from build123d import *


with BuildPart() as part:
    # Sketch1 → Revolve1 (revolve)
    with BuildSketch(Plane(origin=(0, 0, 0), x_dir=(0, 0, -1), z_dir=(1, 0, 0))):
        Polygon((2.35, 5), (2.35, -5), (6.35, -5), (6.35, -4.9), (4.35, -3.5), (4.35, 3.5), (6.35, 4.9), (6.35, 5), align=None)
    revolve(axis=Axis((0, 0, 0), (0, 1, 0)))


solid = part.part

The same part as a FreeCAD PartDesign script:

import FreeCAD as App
import Part
import Sketcher
from FreeCAD import Vector
Q = App.Units.Quantity


def add_polygon(sketch, points):
    """Adds a closed chain of lines whose ends are joined by coincident constraints."""
    first, n = sketch.GeometryCount, len(points)
    for a, b in zip(points, points[1:] + points[:1]):
        sketch.addGeometry(Part.LineSegment(App.Vector(*a, 0), App.Vector(*b, 0)), False)
    for i in range(n):
        sketch.addConstraint(Sketcher.Constraint("Coincident", first + i, 2, first + (i + 1) % n, 1))

doc = App.newDocument("Part")
params = doc.addObject("Spreadsheet::Sheet", "Params")
for row, (alias, value) in enumerate([
    ("sketch1_width", "10 mm"),
    ("sketch1_width2", "7 mm"),
    ("sketch1_height", "4 mm"),
    ("sketch1_width3", "0.1 mm"),
    ("revolution_angle", "360 deg"),
], start=1):
    params.set(f"A{row}", alias)
    params.set(f"B{row}", "=" + value)
    params.setAlias(f"B{row}", alias)

body = doc.addObject("PartDesign::Body", "Body")

# Sketch on YZ plane
sketch1 = body.newObject("Sketcher::SketchObject", "Sketch")
sketch1.AttachmentSupport = (doc.getObject("YZ_Plane"), [""])
sketch1.MapMode = "FlatFace"
add_polygon(sketch1, [(5, -2.35), (-5, -2.35), (-5, -6.35), (-4.9, -6.35), (-3.5, -4.35), (3.5, -4.35), (4.9, -6.35), (5, -6.35)])  # lines 0-7
sketch1.addConstraint([
    Sketcher.Constraint("Horizontal", 0),
    Sketcher.Constraint("Vertical", 1),
    Sketcher.Constraint("Horizontal", 2),
    Sketcher.Constraint("Horizontal", 4),
    Sketcher.Constraint("Horizontal", 6),
    Sketcher.Constraint("Vertical", 7),
    Sketcher.Constraint("Symmetric", 2, 2, 5, 2, -2),
    Sketcher.Constraint("Equal", 2, 6),
    Sketcher.Constraint("Equal", 3, 5),
    Sketcher.Constraint("DistanceX", 0, 2, 0, 1, Q("10 mm")),
    Sketcher.Constraint("DistanceX", 4, 1, 4, 2, Q("7 mm")),
    Sketcher.Constraint("DistanceY", 1, 2, 1, 1, Q("4 mm")),
    Sketcher.Constraint("DistanceX", 2, 1, 2, 2, Q("0.1 mm")),
    Sketcher.Constraint("DistanceY", 2, 2, 3, 2, Q("2 mm")),
    Sketcher.Constraint("DistanceY", 0, 2, -1, 1, Q("2.35 mm")),
])
sketch1.setExpression("Constraints[17]", "Params.sketch1_width")
sketch1.setExpression("Constraints[18]", "Params.sketch1_width2")
sketch1.setExpression("Constraints[19]", "Params.sketch1_height")
sketch1.setExpression("Constraints[20]", "Params.sketch1_width3")
revolution = body.newObject("PartDesign::Revolution", "Revolution")
revolution.Profile = sketch1
revolution.ReferenceAxis = (sketch1, ["H_Axis"])
revolution.setExpression("Angle", "Params.revolution_angle")

doc.recompute()
